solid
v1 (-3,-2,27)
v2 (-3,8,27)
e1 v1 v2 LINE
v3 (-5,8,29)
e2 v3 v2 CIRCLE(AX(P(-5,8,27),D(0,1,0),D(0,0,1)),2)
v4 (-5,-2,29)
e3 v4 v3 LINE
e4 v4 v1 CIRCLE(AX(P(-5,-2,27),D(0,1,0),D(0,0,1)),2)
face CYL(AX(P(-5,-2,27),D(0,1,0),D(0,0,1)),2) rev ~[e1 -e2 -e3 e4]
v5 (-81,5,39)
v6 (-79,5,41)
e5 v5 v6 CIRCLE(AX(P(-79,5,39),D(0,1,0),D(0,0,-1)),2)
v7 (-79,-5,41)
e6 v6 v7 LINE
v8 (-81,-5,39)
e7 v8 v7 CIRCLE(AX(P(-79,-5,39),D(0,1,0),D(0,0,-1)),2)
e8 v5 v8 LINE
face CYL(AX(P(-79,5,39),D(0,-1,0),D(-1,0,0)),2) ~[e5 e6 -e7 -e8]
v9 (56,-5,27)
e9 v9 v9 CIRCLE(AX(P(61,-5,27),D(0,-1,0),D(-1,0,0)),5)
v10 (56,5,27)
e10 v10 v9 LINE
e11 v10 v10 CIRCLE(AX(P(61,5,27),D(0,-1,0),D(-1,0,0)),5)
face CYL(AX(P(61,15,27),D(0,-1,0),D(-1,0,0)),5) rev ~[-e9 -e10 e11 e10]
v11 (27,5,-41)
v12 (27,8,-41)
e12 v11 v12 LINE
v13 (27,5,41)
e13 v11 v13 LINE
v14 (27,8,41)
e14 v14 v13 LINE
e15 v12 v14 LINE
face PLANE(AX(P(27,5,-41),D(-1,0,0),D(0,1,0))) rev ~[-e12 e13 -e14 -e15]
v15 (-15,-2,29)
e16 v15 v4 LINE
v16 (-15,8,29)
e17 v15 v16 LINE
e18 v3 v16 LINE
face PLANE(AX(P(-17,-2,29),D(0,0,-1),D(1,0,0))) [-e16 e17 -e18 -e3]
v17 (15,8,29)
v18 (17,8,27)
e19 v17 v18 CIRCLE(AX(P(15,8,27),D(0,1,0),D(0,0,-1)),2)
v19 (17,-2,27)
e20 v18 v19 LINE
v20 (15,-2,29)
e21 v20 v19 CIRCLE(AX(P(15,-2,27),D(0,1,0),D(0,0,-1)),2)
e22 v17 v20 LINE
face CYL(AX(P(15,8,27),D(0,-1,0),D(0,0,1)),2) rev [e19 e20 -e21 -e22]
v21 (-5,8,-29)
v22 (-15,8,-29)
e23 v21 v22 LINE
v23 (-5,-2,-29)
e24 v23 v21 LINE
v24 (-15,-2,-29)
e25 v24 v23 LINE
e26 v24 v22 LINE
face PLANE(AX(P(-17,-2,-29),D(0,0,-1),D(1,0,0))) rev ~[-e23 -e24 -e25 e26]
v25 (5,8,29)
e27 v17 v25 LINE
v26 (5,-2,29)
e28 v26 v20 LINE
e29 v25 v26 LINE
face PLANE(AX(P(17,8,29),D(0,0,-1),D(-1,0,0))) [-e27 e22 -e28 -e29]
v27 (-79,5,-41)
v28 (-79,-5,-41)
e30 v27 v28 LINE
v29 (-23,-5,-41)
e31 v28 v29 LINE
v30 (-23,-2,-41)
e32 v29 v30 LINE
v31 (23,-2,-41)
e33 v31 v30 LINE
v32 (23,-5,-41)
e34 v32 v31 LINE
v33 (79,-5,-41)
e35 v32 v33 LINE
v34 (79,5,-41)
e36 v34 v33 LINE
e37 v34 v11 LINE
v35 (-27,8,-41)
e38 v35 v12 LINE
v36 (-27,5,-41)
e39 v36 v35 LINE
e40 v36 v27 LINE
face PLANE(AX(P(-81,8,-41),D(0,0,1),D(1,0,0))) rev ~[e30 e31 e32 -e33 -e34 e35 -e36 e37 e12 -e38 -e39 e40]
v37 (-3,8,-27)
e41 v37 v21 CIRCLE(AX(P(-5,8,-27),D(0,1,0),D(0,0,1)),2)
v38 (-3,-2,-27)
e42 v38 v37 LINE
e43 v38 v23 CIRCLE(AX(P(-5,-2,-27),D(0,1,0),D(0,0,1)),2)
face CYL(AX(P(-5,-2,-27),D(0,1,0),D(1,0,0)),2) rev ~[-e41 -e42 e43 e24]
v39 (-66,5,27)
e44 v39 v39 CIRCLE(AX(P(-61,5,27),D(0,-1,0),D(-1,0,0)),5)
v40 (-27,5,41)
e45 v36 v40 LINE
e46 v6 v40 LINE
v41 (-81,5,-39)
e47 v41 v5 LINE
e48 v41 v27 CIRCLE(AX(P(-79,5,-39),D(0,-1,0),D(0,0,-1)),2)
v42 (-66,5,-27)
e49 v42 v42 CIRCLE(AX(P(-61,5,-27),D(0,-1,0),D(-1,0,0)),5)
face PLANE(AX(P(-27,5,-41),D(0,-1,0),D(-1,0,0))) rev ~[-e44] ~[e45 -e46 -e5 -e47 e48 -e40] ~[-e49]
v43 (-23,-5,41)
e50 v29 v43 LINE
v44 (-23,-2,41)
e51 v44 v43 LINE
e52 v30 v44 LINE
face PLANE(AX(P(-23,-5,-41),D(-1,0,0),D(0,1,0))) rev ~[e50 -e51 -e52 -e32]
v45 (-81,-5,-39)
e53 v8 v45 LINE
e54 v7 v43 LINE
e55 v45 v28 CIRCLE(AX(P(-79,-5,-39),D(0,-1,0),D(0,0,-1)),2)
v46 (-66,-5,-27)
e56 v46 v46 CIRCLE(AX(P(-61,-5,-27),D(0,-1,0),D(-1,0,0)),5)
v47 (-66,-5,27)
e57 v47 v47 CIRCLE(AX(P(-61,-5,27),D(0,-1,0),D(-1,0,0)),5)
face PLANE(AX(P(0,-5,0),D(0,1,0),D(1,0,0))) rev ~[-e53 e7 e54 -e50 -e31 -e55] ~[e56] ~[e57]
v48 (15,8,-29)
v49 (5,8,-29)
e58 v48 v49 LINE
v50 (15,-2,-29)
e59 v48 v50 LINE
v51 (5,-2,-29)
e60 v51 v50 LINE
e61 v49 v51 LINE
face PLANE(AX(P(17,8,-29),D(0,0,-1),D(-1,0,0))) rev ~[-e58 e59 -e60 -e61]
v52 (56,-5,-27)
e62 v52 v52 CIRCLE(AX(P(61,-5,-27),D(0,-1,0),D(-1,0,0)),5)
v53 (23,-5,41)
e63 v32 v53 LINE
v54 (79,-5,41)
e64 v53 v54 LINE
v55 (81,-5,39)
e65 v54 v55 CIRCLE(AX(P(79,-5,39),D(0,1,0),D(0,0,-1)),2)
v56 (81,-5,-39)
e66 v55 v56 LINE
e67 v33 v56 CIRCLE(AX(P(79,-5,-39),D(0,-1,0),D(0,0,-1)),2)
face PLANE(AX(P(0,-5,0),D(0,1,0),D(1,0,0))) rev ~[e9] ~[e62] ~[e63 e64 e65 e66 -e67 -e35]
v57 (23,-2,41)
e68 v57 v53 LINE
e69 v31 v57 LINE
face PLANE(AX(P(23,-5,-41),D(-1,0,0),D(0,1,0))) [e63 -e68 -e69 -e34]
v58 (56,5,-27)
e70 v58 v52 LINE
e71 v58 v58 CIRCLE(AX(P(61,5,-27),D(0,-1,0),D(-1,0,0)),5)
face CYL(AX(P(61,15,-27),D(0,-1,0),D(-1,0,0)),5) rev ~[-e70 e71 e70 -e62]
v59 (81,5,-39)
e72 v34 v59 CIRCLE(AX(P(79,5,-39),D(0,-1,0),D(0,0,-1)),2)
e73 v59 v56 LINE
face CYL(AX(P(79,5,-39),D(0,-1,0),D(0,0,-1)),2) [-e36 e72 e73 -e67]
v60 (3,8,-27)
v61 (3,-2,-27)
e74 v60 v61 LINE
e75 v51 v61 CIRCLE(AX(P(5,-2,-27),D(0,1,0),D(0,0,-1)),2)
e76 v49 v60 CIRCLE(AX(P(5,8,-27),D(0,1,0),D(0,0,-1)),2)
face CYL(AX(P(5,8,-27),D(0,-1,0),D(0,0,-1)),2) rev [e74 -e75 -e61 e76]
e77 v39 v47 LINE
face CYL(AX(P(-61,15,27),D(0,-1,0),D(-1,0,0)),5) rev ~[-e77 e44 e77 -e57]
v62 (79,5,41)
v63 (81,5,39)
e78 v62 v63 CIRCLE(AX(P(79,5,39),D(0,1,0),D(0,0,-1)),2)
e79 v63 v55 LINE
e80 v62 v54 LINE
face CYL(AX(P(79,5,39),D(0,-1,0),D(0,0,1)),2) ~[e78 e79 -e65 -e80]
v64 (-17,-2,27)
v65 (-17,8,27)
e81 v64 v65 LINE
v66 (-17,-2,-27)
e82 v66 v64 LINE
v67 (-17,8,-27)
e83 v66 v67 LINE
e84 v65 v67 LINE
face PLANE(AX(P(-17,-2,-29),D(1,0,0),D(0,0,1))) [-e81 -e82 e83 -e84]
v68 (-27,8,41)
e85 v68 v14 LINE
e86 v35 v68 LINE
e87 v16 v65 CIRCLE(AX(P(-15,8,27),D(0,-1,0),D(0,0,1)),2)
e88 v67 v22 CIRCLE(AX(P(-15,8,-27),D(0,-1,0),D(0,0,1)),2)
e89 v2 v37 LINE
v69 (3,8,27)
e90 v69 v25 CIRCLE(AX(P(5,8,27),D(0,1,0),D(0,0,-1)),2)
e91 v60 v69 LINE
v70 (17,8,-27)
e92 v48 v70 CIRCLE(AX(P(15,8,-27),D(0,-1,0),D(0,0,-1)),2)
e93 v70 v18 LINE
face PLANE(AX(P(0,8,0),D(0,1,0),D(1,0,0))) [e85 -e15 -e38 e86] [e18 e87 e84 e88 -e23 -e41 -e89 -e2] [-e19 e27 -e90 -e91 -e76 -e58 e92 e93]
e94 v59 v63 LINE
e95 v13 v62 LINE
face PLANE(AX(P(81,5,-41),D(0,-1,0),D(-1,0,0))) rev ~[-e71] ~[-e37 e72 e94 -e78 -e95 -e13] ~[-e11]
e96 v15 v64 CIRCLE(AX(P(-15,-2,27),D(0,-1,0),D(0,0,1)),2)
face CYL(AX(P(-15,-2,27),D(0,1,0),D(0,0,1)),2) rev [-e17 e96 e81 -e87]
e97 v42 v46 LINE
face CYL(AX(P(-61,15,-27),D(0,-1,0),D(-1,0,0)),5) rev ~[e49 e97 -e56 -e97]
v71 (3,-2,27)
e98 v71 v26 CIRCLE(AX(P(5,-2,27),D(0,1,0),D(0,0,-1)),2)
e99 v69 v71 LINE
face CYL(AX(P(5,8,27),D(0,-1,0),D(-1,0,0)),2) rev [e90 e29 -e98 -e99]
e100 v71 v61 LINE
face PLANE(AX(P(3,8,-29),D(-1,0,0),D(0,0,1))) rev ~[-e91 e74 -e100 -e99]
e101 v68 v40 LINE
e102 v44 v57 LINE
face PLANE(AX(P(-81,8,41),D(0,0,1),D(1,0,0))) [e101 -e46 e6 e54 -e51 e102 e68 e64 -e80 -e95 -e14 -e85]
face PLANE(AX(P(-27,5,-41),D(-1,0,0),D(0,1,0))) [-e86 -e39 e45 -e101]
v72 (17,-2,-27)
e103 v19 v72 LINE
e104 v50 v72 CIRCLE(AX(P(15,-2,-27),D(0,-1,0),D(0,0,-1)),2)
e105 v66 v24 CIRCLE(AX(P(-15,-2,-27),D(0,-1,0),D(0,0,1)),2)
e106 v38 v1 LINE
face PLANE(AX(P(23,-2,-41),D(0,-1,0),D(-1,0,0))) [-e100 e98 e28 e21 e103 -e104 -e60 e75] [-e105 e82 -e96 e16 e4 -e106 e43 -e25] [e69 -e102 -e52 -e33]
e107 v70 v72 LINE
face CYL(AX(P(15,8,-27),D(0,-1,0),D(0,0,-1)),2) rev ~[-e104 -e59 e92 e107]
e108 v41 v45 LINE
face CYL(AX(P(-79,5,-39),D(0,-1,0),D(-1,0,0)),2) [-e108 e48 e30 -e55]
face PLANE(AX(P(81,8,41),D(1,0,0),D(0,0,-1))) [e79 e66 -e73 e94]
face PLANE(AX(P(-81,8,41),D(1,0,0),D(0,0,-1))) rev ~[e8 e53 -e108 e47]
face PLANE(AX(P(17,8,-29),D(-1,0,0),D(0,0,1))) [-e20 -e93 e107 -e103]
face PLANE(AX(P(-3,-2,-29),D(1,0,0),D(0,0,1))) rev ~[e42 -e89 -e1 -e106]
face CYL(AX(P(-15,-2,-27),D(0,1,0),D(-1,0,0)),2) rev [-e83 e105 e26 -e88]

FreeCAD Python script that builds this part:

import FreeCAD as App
import Part
import Sketcher
from FreeCAD import Vector


def edges_at(feature, points):
    """Names of the edges that pass closest to the given points."""
    edges = feature.Shape.Edges
    near = lambda p: min(range(len(edges)), key=lambda i: edges[i].distToShape(Part.Vertex(*p))[0])
    return sorted({f"Edge{near(p) + 1}" for p in points})

doc = App.newDocument("Part")
body = doc.addObject("PartDesign::Body", "Body")

# Sketch on XZ plane
sketch1 = doc.addObject("Sketcher::SketchObject", "Sketch")
body.addObject(sketch1)
sketch1.AttachmentSupport = (doc.XZ_Plane, [""])
sketch1.MapMode = "FlatFace"
sketch1.AttachmentOffset = App.Placement(Vector(0, 0, -8), App.Rotation())
sketch1.addGeometry(Part.LineSegment(Vector(-81, -41, 0), Vector(-81, 41, 0)), False)
sketch1.addGeometry(Part.LineSegment(Vector(-81, 41, 0), Vector(81, 41, 0)), False)
sketch1.addGeometry(Part.LineSegment(Vector(81, 41, 0), Vector(81, -41, 0)), False)
sketch1.addGeometry(Part.LineSegment(Vector(81, -41, 0), Vector(-81, -41, 0)), False)
sketch1.addConstraint(Sketcher.Constraint("Coincident", 0, 2, 1, 1))
sketch1.addConstraint(Sketcher.Constraint("Coincident", 1, 2, 2, 1))
sketch1.addConstraint(Sketcher.Constraint("Coincident", 2, 2, 3, 1))
sketch1.addConstraint(Sketcher.Constraint("Coincident", 3, 2, 0, 1))
sketch1.addConstraint(Sketcher.Constraint("Vertical", 0))
sketch1.addConstraint(Sketcher.Constraint("Horizontal", 1))
sketch1.addConstraint(Sketcher.Constraint("Vertical", 2))
sketch1.addConstraint(Sketcher.Constraint("Horizontal", 3))
sketch1.addConstraint(Sketcher.Constraint("Symmetric", 0, 2, 2, 2, -1, 1))
sketch1.addConstraint(Sketcher.Constraint("DistanceX", 1, 1, 1, 2, 162.0))
sketch1.addConstraint(Sketcher.Constraint("DistanceY", 0, 1, 0, 2, 82.0))
pad1 = doc.addObject("PartDesign::Pad", "Pad")
body.addObject(pad1)
pad1.Profile = sketch1
pad1.Length = 13

# Sketch on XY plane
sketch2 = doc.addObject("Sketcher::SketchObject", "Sketch001")
body.addObject(sketch2)
sketch2.AttachmentSupport = (doc.XY_Plane, [""])
sketch2.MapMode = "FlatFace"
sketch2.AttachmentOffset = App.Placement(Vector(0, 0, -41), App.Rotation())
sketch2.addGeometry(Part.LineSegment(Vector(81, 8, 0), Vector(81, 5, 0)), False)
sketch2.addGeometry(Part.LineSegment(Vector(81, 5, 0), Vector(27, 5, 0)), False)
sketch2.addGeometry(Part.LineSegment(Vector(27, 5, 0), Vector(27, 8, 0)), False)
sketch2.addGeometry(Part.LineSegment(Vector(27, 8, 0), Vector(81, 8, 0)), False)
sketch2.addConstraint(Sketcher.Constraint("Coincident", 0, 2, 1, 1))
sketch2.addConstraint(Sketcher.Constraint("Coincident", 1, 2, 2, 1))
sketch2.addConstraint(Sketcher.Constraint("Coincident", 2, 2, 3, 1))
sketch2.addConstraint(Sketcher.Constraint("Coincident", 3, 2, 0, 1))
sketch2.addConstraint(Sketcher.Constraint("Vertical", 0))
sketch2.addConstraint(Sketcher.Constraint("Horizontal", 1))
sketch2.addConstraint(Sketcher.Constraint("Vertical", 2))
sketch2.addConstraint(Sketcher.Constraint("Horizontal", 3))
sketch2.addConstraint(Sketcher.Constraint("DistanceX", 1, 2, 1, 1, 54.0))
sketch2.addConstraint(Sketcher.Constraint("DistanceY", 0, 2, 0, 1, 3.0))
sketch2.addConstraint(Sketcher.Constraint("DistanceX", -1, 1, 0, 2, 81.0))
sketch2.addConstraint(Sketcher.Constraint("DistanceY", -1, 1, 0, 2, 5.0))
pocket1 = doc.addObject("PartDesign::Pocket", "Pocket")
body.addObject(pocket1)
pocket1.Profile = sketch2
pocket1.Type = "ThroughAll"
pocket1.Reversed = True

# Sketch on XY plane
sketch3 = doc.addObject("Sketcher::SketchObject", "Sketch002")
body.addObject(sketch3)
sketch3.AttachmentSupport = (doc.XY_Plane, [""])
sketch3.MapMode = "FlatFace"
sketch3.AttachmentOffset = App.Placement(Vector(0, 0, -41), App.Rotation())
sketch3.addGeometry(Part.LineSegment(Vector(-27, 8, 0), Vector(-27, 5, 0)), False)
sketch3.addGeometry(Part.LineSegment(Vector(-27, 5, 0), Vector(-81, 5, 0)), False)
sketch3.addGeometry(Part.LineSegment(Vector(-81, 5, 0), Vector(-81, 8, 0)), False)
sketch3.addGeometry(Part.LineSegment(Vector(-81, 8, 0), Vector(-27, 8, 0)), False)
sketch3.addConstraint(Sketcher.Constraint("Coincident", 0, 2, 1, 1))
sketch3.addConstraint(Sketcher.Constraint("Coincident", 1, 2, 2, 1))
sketch3.addConstraint(Sketcher.Constraint("Coincident", 2, 2, 3, 1))
sketch3.addConstraint(Sketcher.Constraint("Coincident", 3, 2, 0, 1))
sketch3.addConstraint(Sketcher.Constraint("Vertical", 0))
sketch3.addConstraint(Sketcher.Constraint("Horizontal", 1))
sketch3.addConstraint(Sketcher.Constraint("Vertical", 2))
sketch3.addConstraint(Sketcher.Constraint("Horizontal", 3))
sketch3.addConstraint(Sketcher.Constraint("DistanceX", 1, 2, 1, 1, 54.0))
sketch3.addConstraint(Sketcher.Constraint("DistanceY", 0, 2, 0, 1, 3.0))
sketch3.addConstraint(Sketcher.Constraint("DistanceX", 0, 2, -1, 1, 27.0))
sketch3.addConstraint(Sketcher.Constraint("DistanceY", -1, 1, 0, 2, 5.0))
pocket2 = doc.addObject("PartDesign::Pocket", "Pocket001")
body.addObject(pocket2)
pocket2.Profile = sketch3
pocket2.Type = "ThroughAll"
pocket2.Reversed = True

# Sketch on XY plane
sketch4 = doc.addObject("Sketcher::SketchObject", "Sketch003")
body.addObject(sketch4)
sketch4.AttachmentSupport = (doc.XY_Plane, [""])
sketch4.MapMode = "FlatFace"
sketch4.AttachmentOffset = App.Placement(Vector(0, 0, -41), App.Rotation())
sketch4.addGeometry(Part.LineSegment(Vector(23, -2, 0), Vector(23, -5, 0)), False)
sketch4.addGeometry(Part.LineSegment(Vector(23, -5, 0), Vector(-23, -5, 0)), False)
sketch4.addGeometry(Part.LineSegment(Vector(-23, -5, 0), Vector(-23, -2, 0)), False)
sketch4.addGeometry(Part.LineSegment(Vector(-23, -2, 0), Vector(23, -2, 0)), False)
sketch4.addConstraint(Sketcher.Constraint("Coincident", 0, 2, 1, 1))
sketch4.addConstraint(Sketcher.Constraint("Coincident", 1, 2, 2, 1))
sketch4.addConstraint(Sketcher.Constraint("Coincident", 2, 2, 3, 1))
sketch4.addConstraint(Sketcher.Constraint("Coincident", 3, 2, 0, 1))
sketch4.addConstraint(Sketcher.Constraint("Vertical", 0))
sketch4.addConstraint(Sketcher.Constraint("Horizontal", 1))
sketch4.addConstraint(Sketcher.Constraint("Vertical", 2))
sketch4.addConstraint(Sketcher.Constraint("Horizontal", 3))
sketch4.addConstraint(Sketcher.Constraint("DistanceX", 1, 2, 1, 1, 46.0))
sketch4.addConstraint(Sketcher.Constraint("DistanceY", 0, 2, 0, 1, 3.0))
sketch4.addConstraint(Sketcher.Constraint("DistanceX", -1, 1, 0, 2, 23.0))
sketch4.addConstraint(Sketcher.Constraint("DistanceY", 0, 2, -1, 1, 5.0))
pocket3 = doc.addObject("PartDesign::Pocket", "Pocket002")
body.addObject(pocket3)
pocket3.Profile = sketch4
pocket3.Type = "ThroughAll"
pocket3.Reversed = True

# Sketch on XZ plane
sketch5 = doc.addObject("Sketcher::SketchObject", "Sketch004")
body.addObject(sketch5)
sketch5.AttachmentSupport = (doc.XZ_Plane, [""])
sketch5.MapMode = "FlatFace"
sketch5.AttachmentOffset = App.Placement(Vector(0, 0, 2), App.Rotation())
sketch5.addGeometry(Part.LineSegment(Vector(-17, 29, 0), Vector(-17, -29, 0)), False)
sketch5.addGeometry(Part.LineSegment(Vector(-17, -29, 0), Vector(-3, -29, 0)), False)
sketch5.addGeometry(Part.LineSegment(Vector(-3, -29, 0), Vector(-3, 29, 0)), False)
sketch5.addGeometry(Part.LineSegment(Vector(-3, 29, 0), Vector(-17, 29, 0)), False)
sketch5.addConstraint(Sketcher.Constraint("Coincident", 0, 2, 1, 1))
sketch5.addConstraint(Sketcher.Constraint("Coincident", 1, 2, 2, 1))
sketch5.addConstraint(Sketcher.Constraint("Coincident", 2, 2, 3, 1))
sketch5.addConstraint(Sketcher.Constraint("Coincident", 3, 2, 0, 1))
sketch5.addConstraint(Sketcher.Constraint("Vertical", 0))
sketch5.addConstraint(Sketcher.Constraint("Horizontal", 1))
sketch5.addConstraint(Sketcher.Constraint("Vertical", 2))
sketch5.addConstraint(Sketcher.Constraint("Horizontal", 3))
sketch5.addConstraint(Sketcher.Constraint("DistanceX", 1, 1, 1, 2, 14.0))
sketch5.addConstraint(Sketcher.Constraint("DistanceY", 0, 2, 0, 1, 58.0))
sketch5.addConstraint(Sketcher.Constraint("DistanceX", 0, 2, -1, 1, 17.0))
sketch5.addConstraint(Sketcher.Constraint("DistanceY", 0, 2, -1, 1, 29.0))
pocket4 = doc.addObject("PartDesign::Pocket", "Pocket003")
body.addObject(pocket4)
pocket4.Profile = sketch5
pocket4.Type = "ThroughAll"

# Sketch on XZ plane
sketch6 = doc.addObject("Sketcher::SketchObject", "Sketch005")
body.addObject(sketch6)
sketch6.AttachmentSupport = (doc.XZ_Plane, [""])
sketch6.MapMode = "FlatFace"
sketch6.AttachmentOffset = App.Placement(Vector(0, 0, -8), App.Rotation())
sketch6.addGeometry(Part.LineSegment(Vector(17, 29, 0), Vector(17, -29, 0)), False)
sketch6.addGeometry(Part.LineSegment(Vector(17, -29, 0), Vector(3, -29, 0)), False)
sketch6.addGeometry(Part.LineSegment(Vector(3, -29, 0), Vector(3, 29, 0)), False)
sketch6.addGeometry(Part.LineSegment(Vector(3, 29, 0), Vector(17, 29, 0)), False)
sketch6.addConstraint(Sketcher.Constraint("Coincident", 0, 2, 1, 1))
sketch6.addConstraint(Sketcher.Constraint("Coincident", 1, 2, 2, 1))
sketch6.addConstraint(Sketcher.Constraint("Coincident", 2, 2, 3, 1))
sketch6.addConstraint(Sketcher.Constraint("Coincident", 3, 2, 0, 1))
sketch6.addConstraint(Sketcher.Constraint("Vertical", 0))
sketch6.addConstraint(Sketcher.Constraint("Horizontal", 1))
sketch6.addConstraint(Sketcher.Constraint("Vertical", 2))
sketch6.addConstraint(Sketcher.Constraint("Horizontal", 3))
sketch6.addConstraint(Sketcher.Constraint("DistanceX", 1, 2, 1, 1, 14.0))
sketch6.addConstraint(Sketcher.Constraint("DistanceY", 0, 2, 0, 1, 58.0))
sketch6.addConstraint(Sketcher.Constraint("DistanceX", -1, 1, 0, 2, 17.0))
sketch6.addConstraint(Sketcher.Constraint("DistanceY", 0, 2, -1, 1, 29.0))
pocket5 = doc.addObject("PartDesign::Pocket", "Pocket004")
body.addObject(pocket5)
pocket5.Profile = sketch6
pocket5.Type = "ThroughAll"
pocket5.Reversed = True

# Sketch on XZ plane
sketch7 = doc.addObject("Sketcher::SketchObject", "Sketch006")
body.addObject(sketch7)
sketch7.AttachmentSupport = (doc.XZ_Plane, [""])
sketch7.MapMode = "FlatFace"
sketch7.AttachmentOffset = App.Placement(Vector(0, 0, -5), App.Rotation())
sketch7.addGeometry(Part.Circle(Vector(-61, -27, 0), Vector(0, 0, 1), 5), False)
sketch7.addGeometry(Part.Circle(Vector(61, -27, 0), Vector(0, 0, 1), 5), False)
sketch7.addGeometry(Part.Circle(Vector(-61, 27, 0), Vector(0, 0, 1), 5), False)
sketch7.addGeometry(Part.Circle(Vector(61, 27, 0), Vector(0, 0, 1), 5), False)
sketch7.addConstraint(Sketcher.Constraint("Equal", 0, 1))
sketch7.addConstraint(Sketcher.Constraint("Equal", 1, 2))
sketch7.addConstraint(Sketcher.Constraint("Equal", 2, 3))
sketch7.addConstraint(Sketcher.Constraint("Symmetric", 1, 3, 2, 3, -1, 1))
sketch7.addConstraint(Sketcher.Constraint("Symmetric", 0, 3, 3, 3, -1, 1))
sketch7.addConstraint(Sketcher.Constraint("Symmetric", 0, 3, 1, 3, -2))
sketch7.addConstraint(Sketcher.Constraint("Diameter", 0, 10.0))
sketch7.addConstraint(Sketcher.Constraint("DistanceX", 0, 3, -1, 1, 61.0))
sketch7.addConstraint(Sketcher.Constraint("DistanceY", 0, 3, -1, 1, 27.0))
doc.recompute()
hole = doc.addObject("PartDesign::Hole", "Hole")
body.addObject(hole)
hole.Profile = sketch7
hole.ThreadType = "None"
hole.Diameter = 10
hole.DepthType = "Dimension"
hole.Depth = 10
hole.DrillPoint = "Flat"
hole.Reversed = True
doc.recompute()

fillet = doc.addObject("PartDesign::Fillet", "Fillet")
body.addObject(fillet)
fillet.Base = (hole, edges_at(hole, [
    (-3, 3, 29),
    (-3, 3, -29),
    (-17, 3, -29),
    (-17, 3, 29),
    (3, 3, -29),
    (81, 0, 41),
    (17, 3, -29),
    (17, 3, 29),
    (3, 3, 29),
    (-81, 0, 41),
    (-81, 0, -41),
    (81, 0, -41),
]))
fillet.Radius = 2

doc.recompute()
